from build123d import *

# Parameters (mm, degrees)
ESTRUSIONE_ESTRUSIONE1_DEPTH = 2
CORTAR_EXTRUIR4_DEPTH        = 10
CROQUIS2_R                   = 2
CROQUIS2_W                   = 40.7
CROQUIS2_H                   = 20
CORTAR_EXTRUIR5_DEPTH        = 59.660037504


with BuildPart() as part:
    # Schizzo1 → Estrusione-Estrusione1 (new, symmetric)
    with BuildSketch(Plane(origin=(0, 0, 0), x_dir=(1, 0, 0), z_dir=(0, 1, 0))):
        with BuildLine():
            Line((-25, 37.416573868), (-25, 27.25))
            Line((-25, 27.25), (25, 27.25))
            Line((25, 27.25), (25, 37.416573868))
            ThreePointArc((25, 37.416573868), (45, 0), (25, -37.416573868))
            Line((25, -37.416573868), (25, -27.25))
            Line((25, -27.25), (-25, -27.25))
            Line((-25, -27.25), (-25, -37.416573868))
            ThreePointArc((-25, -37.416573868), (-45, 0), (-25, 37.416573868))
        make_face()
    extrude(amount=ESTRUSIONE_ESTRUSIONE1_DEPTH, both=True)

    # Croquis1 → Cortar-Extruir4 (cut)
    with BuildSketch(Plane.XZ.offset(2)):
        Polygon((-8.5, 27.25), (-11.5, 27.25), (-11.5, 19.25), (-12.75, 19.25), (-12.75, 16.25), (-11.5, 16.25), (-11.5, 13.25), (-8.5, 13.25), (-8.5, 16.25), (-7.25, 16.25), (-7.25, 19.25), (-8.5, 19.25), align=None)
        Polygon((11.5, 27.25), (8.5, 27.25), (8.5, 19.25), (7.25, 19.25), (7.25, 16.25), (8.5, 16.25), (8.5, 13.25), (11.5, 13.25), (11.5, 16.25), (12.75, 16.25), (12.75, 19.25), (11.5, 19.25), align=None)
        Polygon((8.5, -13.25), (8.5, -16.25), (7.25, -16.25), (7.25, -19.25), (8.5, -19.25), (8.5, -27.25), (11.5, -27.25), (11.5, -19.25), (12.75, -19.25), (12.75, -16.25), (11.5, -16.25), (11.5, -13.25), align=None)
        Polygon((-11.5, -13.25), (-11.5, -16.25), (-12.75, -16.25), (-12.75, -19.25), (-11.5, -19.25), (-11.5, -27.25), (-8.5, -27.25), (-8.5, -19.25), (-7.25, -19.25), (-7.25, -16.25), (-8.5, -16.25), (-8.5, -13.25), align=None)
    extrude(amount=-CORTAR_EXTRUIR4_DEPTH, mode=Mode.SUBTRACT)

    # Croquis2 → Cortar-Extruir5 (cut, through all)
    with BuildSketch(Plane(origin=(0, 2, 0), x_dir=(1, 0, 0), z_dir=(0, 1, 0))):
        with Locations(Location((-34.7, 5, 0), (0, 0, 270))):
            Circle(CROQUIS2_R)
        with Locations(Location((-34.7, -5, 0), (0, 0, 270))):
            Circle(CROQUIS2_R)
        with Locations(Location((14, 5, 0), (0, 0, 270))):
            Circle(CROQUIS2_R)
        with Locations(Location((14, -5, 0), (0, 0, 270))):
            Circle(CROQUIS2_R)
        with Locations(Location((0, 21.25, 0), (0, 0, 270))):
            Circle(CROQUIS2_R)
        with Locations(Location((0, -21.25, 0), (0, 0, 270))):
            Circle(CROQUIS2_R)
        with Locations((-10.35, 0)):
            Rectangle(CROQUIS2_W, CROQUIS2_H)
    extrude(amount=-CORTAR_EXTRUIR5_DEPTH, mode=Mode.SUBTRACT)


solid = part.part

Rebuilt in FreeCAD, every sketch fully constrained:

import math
import FreeCAD as App
import Part
import Sketcher

V = App.Vector
Q = App.Units.Quantity

doc = App.newDocument("Part")
body = doc.addObject("PartDesign::Body", "Body")

sketch1 = body.newObject("Sketcher::SketchObject", "Sketch")
sketch1.AttachmentSupport = (doc.getObject("XZ_Plane"), [""])
sketch1.MapMode = "FlatFace"
sketch1.addGeometry(Part.LineSegment(V(-25, -27, 0), V(-25, -37, 0)), False)
sketch1.addGeometry(Part.ArcOfCircle(Part.Circle(V(0, 0, 0), V(0, 0, 1), 45), math.radians(124), math.radians(236)), False)
sketch1.addGeometry(Part.LineSegment(V(-25, 37, 0), V(-25, 27, 0)), False)
sketch1.addGeometry(Part.LineSegment(V(-25, 27, 0), V(25, 27, 0)), False)
sketch1.addGeometry(Part.LineSegment(V(25, 27, 0), V(25, 37, 0)), False)
sketch1.addGeometry(Part.ArcOfCircle(Part.Circle(V(0, 0, 0), V(0, 0, 1), 45), math.radians(-56), math.radians(56)), False)
sketch1.addGeometry(Part.LineSegment(V(25, -37, 0), V(25, -27, 0)), False)
sketch1.addGeometry(Part.LineSegment(V(25, -27, 0), V(-25, -27, 0)), False)
sketch1.addConstraint(Sketcher.Constraint("Coincident", 0, 2, 1, 2))
sketch1.addConstraint(Sketcher.Constraint("Coincident", 1, 1, 2, 1))
sketch1.addConstraint(Sketcher.Constraint("Coincident", 2, 2, 3, 1))
sketch1.addConstraint(Sketcher.Constraint("Coincident", 3, 2, 4, 1))
sketch1.addConstraint(Sketcher.Constraint("Coincident", 4, 2, 5, 2))
sketch1.addConstraint(Sketcher.Constraint("Coincident", 5, 1, 6, 1))
sketch1.addConstraint(Sketcher.Constraint("Coincident", 6, 2, 7, 1))
sketch1.addConstraint(Sketcher.Constraint("Coincident", 7, 2, 0, 1))
sketch1.addConstraint(Sketcher.Constraint("Vertical", 0))
sketch1.addConstraint(Sketcher.Constraint("Vertical", 2))
sketch1.addConstraint(Sketcher.Constraint("Horizontal", 3))
sketch1.addConstraint(Sketcher.Constraint("Vertical", 4))
sketch1.addConstraint(Sketcher.Constraint("Vertical", 6))
sketch1.addConstraint(Sketcher.Constraint("Horizontal", 7))
sketch1.addConstraint(Sketcher.Constraint("Coincident", 1, 3, -1, 1))
sketch1.addConstraint(Sketcher.Constraint("Coincident", 5, 3, -1, 1))
sketch1.addConstraint(Sketcher.Constraint("Equal", 1, 5))
sketch1.addConstraint(Sketcher.Constraint("Symmetric", 2, 2, 6, 2, -1, 1))
sketch1.addConstraint(Sketcher.Constraint("Horizontal", 1, 1, 4, 2))
sketch1.addConstraint(Sketcher.Constraint("Horizontal", 0, 2, 5, 1))
sketch1.addConstraint(Sketcher.Constraint("Radius", 1, Q("45 mm")))
sketch1.addConstraint(Sketcher.Constraint("DistanceX", 3, 1, 3, 2, Q("50 mm")))
sketch1.addConstraint(Sketcher.Constraint("DistanceY", 6, 2, 3, 2, Q("54.5 mm")))
pad1 = body.newObject("PartDesign::Pad", "Pad")
pad1.Profile = sketch1
pad1.Length = 4
pad1.Midplane = True

sketch2 = body.newObject("Sketcher::SketchObject", "Sketch001")
sketch2.AttachmentSupport = (doc.getObject("XZ_Plane"), [""])
sketch2.MapMode = "FlatFace"
sketch2.AttachmentOffset = App.Placement(V(0, 0, 2), App.Rotation())
sketch2.addGeometry(Part.LineSegment(V(-8.5, 27.2, 0), V(-11.5, 27.2, 0)), False)
sketch2.addGeometry(Part.LineSegment(V(-11.5, 27.2, 0), V(-11.5, 19.2, 0)), False)
sketch2.addGeometry(Part.LineSegment(V(-11.5, 19.2, 0), V(-12.8, 19.2, 0)), False)
sketch2.addGeometry(Part.LineSegment(V(-12.8, 19.2, 0), V(-12.8, 16.2, 0)), False)
sketch2.addGeometry(Part.LineSegment(V(-12.8, 16.2, 0), V(-11.5, 16.2, 0)), False)
sketch2.addGeometry(Part.LineSegment(V(-11.5, 16.2, 0), V(-11.5, 13.2, 0)), False)
sketch2.addGeometry(Part.LineSegment(V(-11.5, 13.2, 0), V(-8.5, 13.2, 0)), False)
sketch2.addGeometry(Part.LineSegment(V(-8.5, 13.2, 0), V(-8.5, 16.2, 0)), False)
sketch2.addGeometry(Part.LineSegment(V(-8.5, 16.2, 0), V(-7.2, 16.2, 0)), False)
sketch2.addGeometry(Part.LineSegment(V(-7.2, 16.2, 0), V(-7.2, 19.2, 0)), False)
sketch2.addGeometry(Part.LineSegment(V(-7.2, 19.2, 0), V(-8.5, 19.2, 0)), False)
sketch2.addGeometry(Part.LineSegment(V(-8.5, 19.2, 0), V(-8.5, 27.2, 0)), False)
sketch2.addGeometry(Part.LineSegment(V(11.5, 27.2, 0), V(8.5, 27.2, 0)), False)
sketch2.addGeometry(Part.LineSegment(V(8.5, 27.2, 0), V(8.5, 19.2, 0)), False)
sketch2.addGeometry(Part.LineSegment(V(8.5, 19.2, 0), V(7.2, 19.2, 0)), False)
sketch2.addGeometry(Part.LineSegment(V(7.2, 19.2, 0), V(7.2, 16.2, 0)), False)
sketch2.addGeometry(Part.LineSegment(V(7.2, 16.2, 0), V(8.5, 16.2, 0)), False)
sketch2.addGeometry(Part.LineSegment(V(8.5, 16.2, 0), V(8.5, 13.2, 0)), False)
sketch2.addGeometry(Part.LineSegment(V(8.5, 13.2, 0), V(11.5, 13.2, 0)), False)
sketch2.addGeometry(Part.LineSegment(V(11.5, 13.2, 0), V(11.5, 16.2, 0)), False)
sketch2.addGeometry(Part.LineSegment(V(11.5, 16.2, 0), V(12.8, 16.2, 0)), False)
sketch2.addGeometry(Part.LineSegment(V(12.8, 16.2, 0), V(12.8, 19.2, 0)), False)
sketch2.addGeometry(Part.LineSegment(V(12.8, 19.2, 0), V(11.5, 19.2, 0)), False)
sketch2.addGeometry(Part.LineSegment(V(11.5, 19.2, 0), V(11.5, 27.2, 0)), False)
sketch2.addGeometry(Part.LineSegment(V(8.5, -13.2, 0), V(8.5, -16.2, 0)), False)
sketch2.addGeometry(Part.LineSegment(V(8.5, -16.2, 0), V(7.2, -16.2, 0)), False)
sketch2.addGeometry(Part.LineSegment(V(7.2, -16.2, 0), V(7.2, -19.2, 0)), False)
sketch2.addGeometry(Part.LineSegment(V(7.2, -19.2, 0), V(8.5, -19.2, 0)), False)
sketch2.addGeometry(Part.LineSegment(V(8.5, -19.2, 0), V(8.5, -27.2, 0)), False)
sketch2.addGeometry(Part.LineSegment(V(8.5, -27.2, 0), V(11.5, -27.2, 0)), False)
sketch2.addGeometry(Part.LineSegment(V(11.5, -27.2, 0), V(11.5, -19.2, 0)), False)
sketch2.addGeometry(Part.LineSegment(V(11.5, -19.2, 0), V(12.8, -19.2, 0)), False)
sketch2.addGeometry(Part.LineSegment(V(12.8, -19.2, 0), V(12.8, -16.2, 0)), False)
sketch2.addGeometry(Part.LineSegment(V(12.8, -16.2, 0), V(11.5, -16.2, 0)), False)
sketch2.addGeometry(Part.LineSegment(V(11.5, -16.2, 0), V(11.5, -13.2, 0)), False)
sketch2.addGeometry(Part.LineSegment(V(11.5, -13.2, 0), V(8.5, -13.2, 0)), False)
sketch2.addGeometry(Part.LineSegment(V(-11.5, -13.2, 0), V(-11.5, -16.2, 0)), False)
sketch2.addGeometry(Part.LineSegment(V(-11.5, -16.2, 0), V(-12.8, -16.2, 0)), False)
sketch2.addGeometry(Part.LineSegment(V(-12.8, -16.2, 0), V(-12.8, -19.2, 0)), False)
sketch2.addGeometry(Part.LineSegment(V(-12.8, -19.2, 0), V(-11.5, -19.2, 0)), False)
sketch2.addGeometry(Part.LineSegment(V(-11.5, -19.2, 0), V(-11.5, -27.2, 0)), False)
sketch2.addGeometry(Part.LineSegment(V(-11.5, -27.2, 0), V(-8.5, -27.2, 0)), False)
sketch2.addGeometry(Part.LineSegment(V(-8.5, -27.2, 0), V(-8.5, -19.2, 0)), False)
sketch2.addGeometry(Part.LineSegment(V(-8.5, -19.2, 0), V(-7.2, -19.2, 0)), False)
sketch2.addGeometry(Part.LineSegment(V(-7.2, -19.2, 0), V(-7.2, -16.2, 0)), False)
sketch2.addGeometry(Part.LineSegment(V(-7.2, -16.2, 0), V(-8.5, -16.2, 0)), False)
sketch2.addGeometry(Part.LineSegment(V(-8.5, -16.2, 0), V(-8.5, -13.2, 0)), False)
sketch2.addGeometry(Part.LineSegment(V(-8.5, -13.2, 0), V(-11.5, -13.2, 0)), False)
sketch2.addConstraint(Sketcher.Constraint("Coincident", 0, 2, 1, 1))
sketch2.addConstraint(Sketcher.Constraint("Coincident", 1, 2, 2, 1))
sketch2.addConstraint(Sketcher.Constraint("Coincident", 2, 2, 3, 1))
sketch2.addConstraint(Sketcher.Constraint("Coincident", 3, 2, 4, 1))
sketch2.addConstraint(Sketcher.Constraint("Coincident", 4, 2, 5, 1))
sketch2.addConstraint(Sketcher.Constraint("Coincident", 5, 2, 6, 1))
sketch2.addConstraint(Sketcher.Constraint("Coincident", 6, 2, 7, 1))
sketch2.addConstraint(Sketcher.Constraint("Coincident", 7, 2, 8, 1))
sketch2.addConstraint(Sketcher.Constraint("Coincident", 8, 2, 9, 1))
sketch2.addConstraint(Sketcher.Constraint("Coincident", 9, 2, 10, 1))
sketch2.addConstraint(Sketcher.Constraint("Coincident", 10, 2, 11, 1))
sketch2.addConstraint(Sketcher.Constraint("Coincident", 11, 2, 0, 1))
sketch2.addConstraint(Sketcher.Constraint("Coincident", 12, 2, 13, 1))
sketch2.addConstraint(Sketcher.Constraint("Coincident", 13, 2, 14, 1))
sketch2.addConstraint(Sketcher.Constraint("Coincident", 14, 2, 15, 1))
sketch2.addConstraint(Sketcher.Constraint("Coincident", 15, 2, 16, 1))
sketch2.addConstraint(Sketcher.Constraint("Coincident", 16, 2, 17, 1))
sketch2.addConstraint(Sketcher.Constraint("Coincident", 17, 2, 18, 1))
sketch2.addConstraint(Sketcher.Constraint("Coincident", 18, 2, 19, 1))
sketch2.addConstraint(Sketcher.Constraint("Coincident", 19, 2, 20, 1))
sketch2.addConstraint(Sketcher.Constraint("Coincident", 20, 2, 21, 1))
sketch2.addConstraint(Sketcher.Constraint("Coincident", 21, 2, 22, 1))
sketch2.addConstraint(Sketcher.Constraint("Coincident", 22, 2, 23, 1))
sketch2.addConstraint(Sketcher.Constraint("Coincident", 23, 2, 12, 1))
sketch2.addConstraint(Sketcher.Constraint("Coincident", 24, 2, 25, 1))
sketch2.addConstraint(Sketcher.Constraint("Coincident", 25, 2, 26, 1))
sketch2.addConstraint(Sketcher.Constraint("Coincident", 26, 2, 27, 1))
sketch2.addConstraint(Sketcher.Constraint("Coincident", 27, 2, 28, 1))
sketch2.addConstraint(Sketcher.Constraint("Coincident", 28, 2, 29, 1))
sketch2.addConstraint(Sketcher.Constraint("Coincident", 29, 2, 30, 1))
sketch2.addConstraint(Sketcher.Constraint("Coincident", 30, 2, 31, 1))
sketch2.addConstraint(Sketcher.Constraint("Coincident", 31, 2, 32, 1))
sketch2.addConstraint(Sketcher.Constraint("Coincident", 32, 2, 33, 1))
sketch2.addConstraint(Sketcher.Constraint("Coincident", 33, 2, 34, 1))
sketch2.addConstraint(Sketcher.Constraint("Coincident", 34, 2, 35, 1))
sketch2.addConstraint(Sketcher.Constraint("Coincident", 35, 2, 24, 1))
sketch2.addConstraint(Sketcher.Constraint("Coincident", 36, 2, 37, 1))
sketch2.addConstraint(Sketcher.Constraint("Coincident", 37, 2, 38, 1))
sketch2.addConstraint(Sketcher.Constraint("Coincident", 38, 2, 39, 1))
sketch2.addConstraint(Sketcher.Constraint("Coincident", 39, 2, 40, 1))
sketch2.addConstraint(Sketcher.Constraint("Coincident", 40, 2, 41, 1))
sketch2.addConstraint(Sketcher.Constraint("Coincident", 41, 2, 42, 1))
sketch2.addConstraint(Sketcher.Constraint("Coincident", 42, 2, 43, 1))
sketch2.addConstraint(Sketcher.Constraint("Coincident", 43, 2, 44, 1))
sketch2.addConstraint(Sketcher.Constraint("Coincident", 44, 2, 45, 1))
sketch2.addConstraint(Sketcher.Constraint("Coincident", 45, 2, 46, 1))
sketch2.addConstraint(Sketcher.Constraint("Coincident", 46, 2, 47, 1))
sketch2.addConstraint(Sketcher.Constraint("Coincident", 47, 2, 36, 1))
sketch2.addConstraint(Sketcher.Constraint("Horizontal", 0))
sketch2.addConstraint(Sketcher.Constraint("Vertical", 1))
sketch2.addConstraint(Sketcher.Constraint("Horizontal", 2))
sketch2.addConstraint(Sketcher.Constraint("Vertical", 3))
sketch2.addConstraint(Sketcher.Constraint("Horizontal", 4))
sketch2.addConstraint(Sketcher.Constraint("Vertical", 5))
sketch2.addConstraint(Sketcher.Constraint("Horizontal", 6))
sketch2.addConstraint(Sketcher.Constraint("Vertical", 7))
sketch2.addConstraint(Sketcher.Constraint("Horizontal", 8))
sketch2.addConstraint(Sketcher.Constraint("Vertical", 9))
sketch2.addConstraint(Sketcher.Constraint("Horizontal", 10))
sketch2.addConstraint(Sketcher.Constraint("Vertical", 11))
sketch2.addConstraint(Sketcher.Constraint("Horizontal", 12))
sketch2.addConstraint(Sketcher.Constraint("Vertical", 13))
sketch2.addConstraint(Sketcher.Constraint("Horizontal", 14))
sketch2.addConstraint(Sketcher.Constraint("Vertical", 15))
sketch2.addConstraint(Sketcher.Constraint("Horizontal", 16))
sketch2.addConstraint(Sketcher.Constraint("Vertical", 17))
sketch2.addConstraint(Sketcher.Constraint("Horizontal", 18))
sketch2.addConstraint(Sketcher.Constraint("Vertical", 19))
sketch2.addConstraint(Sketcher.Constraint("Horizontal", 20))
sketch2.addConstraint(Sketcher.Constraint("Vertical", 21))
sketch2.addConstraint(Sketcher.Constraint("Horizontal", 22))
sketch2.addConstraint(Sketcher.Constraint("Vertical", 23))
sketch2.addConstraint(Sketcher.Constraint("Vertical", 24))
sketch2.addConstraint(Sketcher.Constraint("Horizontal", 25))
sketch2.addConstraint(Sketcher.Constraint("Vertical", 26))
sketch2.addConstraint(Sketcher.Constraint("Horizontal", 27))
sketch2.addConstraint(Sketcher.Constraint("Vertical", 28))
sketch2.addConstraint(Sketcher.Constraint("Horizontal", 29))
sketch2.addConstraint(Sketcher.Constraint("Vertical", 30))
sketch2.addConstraint(Sketcher.Constraint("Horizontal", 31))
sketch2.addConstraint(Sketcher.Constraint("Vertical", 32))
sketch2.addConstraint(Sketcher.Constraint("Horizontal", 33))
sketch2.addConstraint(Sketcher.Constraint("Vertical", 34))
sketch2.addConstraint(Sketcher.Constraint("Horizontal", 35))
sketch2.addConstraint(Sketcher.Constraint("Vertical", 36))
sketch2.addConstraint(Sketcher.Constraint("Horizontal", 37))
sketch2.addConstraint(Sketcher.Constraint("Vertical", 38))
sketch2.addConstraint(Sketcher.Constraint("Horizontal", 39))
sketch2.addConstraint(Sketcher.Constraint("Vertical", 40))
sketch2.addConstraint(Sketcher.Constraint("Horizontal", 41))
sketch2.addConstraint(Sketcher.Constraint("Vertical", 42))
sketch2.addConstraint(Sketcher.Constraint("Horizontal", 43))
sketch2.addConstraint(Sketcher.Constraint("Vertical", 44))
sketch2.addConstraint(Sketcher.Constraint("Horizontal", 45))
sketch2.addConstraint(Sketcher.Constraint("Vertical", 46))
sketch2.addConstraint(Sketcher.Constraint("Horizontal", 47))
sketch2.addConstraint(Sketcher.Constraint("Symmetric", 7, 2, 24, 2, -1, 1))
sketch2.addConstraint(Sketcher.Constraint("Symmetric", 9, 2, 26, 2, -1, 1))
sketch2.addConstraint(Sketcher.Constraint("Symmetric", 11, 2, 28, 2, -1, 1))
sketch2.addConstraint(Sketcher.Constraint("Symmetric", 1, 2, 30, 2, -1, 1))
sketch2.addConstraint(Sketcher.Constraint("Symmetric", 3, 2, 32, 2, -1, 1))
sketch2.addConstraint(Sketcher.Constraint("Symmetric", 5, 2, 34, 2, -1, 1))
sketch2.addConstraint(Sketcher.Constraint("Symmetric", 19, 2, 36, 2, -1, 1))
sketch2.addConstraint(Sketcher.Constraint("Symmetric", 21, 2, 38, 2, -1, 1))
sketch2.addConstraint(Sketcher.Constraint("Symmetric", 23, 2, 40, 2, -1, 1))
sketch2.addConstraint(Sketcher.Constraint("Symmetric", 13, 2, 42, 2, -1, 1))
sketch2.addConstraint(Sketcher.Constraint("Symmetric", 15, 2, 44, 2, -1, 1))
sketch2.addConstraint(Sketcher.Constraint("Symmetric", 17, 2, 46, 2, -1, 1))
sketch2.addConstraint(Sketcher.Constraint("Symmetric", 11, 2, 12, 2, -2))
sketch2.addConstraint(Sketcher.Constraint("Symmetric", 9, 2, 14, 2, -2))
sketch2.addConstraint(Sketcher.Constraint("Symmetric", 7, 2, 16, 2, -2))
sketch2.addConstraint(Sketcher.Constraint("Symmetric", 5, 2, 18, 2, -2))
sketch2.addConstraint(Sketcher.Constraint("Symmetric", 3, 2, 20, 2, -2))
sketch2.addConstraint(Sketcher.Constraint("Symmetric", 1, 2, 22, 2, -2))
sketch2.addConstraint(Sketcher.Constraint("Horizontal", 4, 2, 7, 2))
sketch2.addConstraint(Sketcher.Constraint("Horizontal", 2, 2, 9, 2))
sketch2.addConstraint(Sketcher.Constraint("Vertical", 1, 2, 4, 2))
sketch2.addConstraint(Sketcher.Constraint("Vertical", 7, 2, 10, 2))
sketch2.addConstraint(Sketcher.Constraint("Equal", 4, 8))
sketch2.addConstraint(Sketcher.Constraint("Equal", 47, 3))
sketch2.addConstraint(Sketcher.Constraint("Equal", 3, 5))
sketch2.addConstraint(Sketcher.Constraint("DistanceX", 0, 2, 0, 1, Q("3 mm")))
sketch2.addConstraint(Sketcher.Constraint("DistanceY", 1, 2, 1, 1, Q("8 mm")))
sketch2.addConstraint(Sketcher.Constraint("DistanceX", 11, 2, 12, 2, Q("17 mm")))
sketch2.addConstraint(Sketcher.Constraint("DistanceX", 2, 2, 2, 1, Q("1.25 mm")))
sketch2.addConstraint(Sketcher.Constraint("DistanceY", 24, 2, 17, 2, Q("29.5 mm")))
pocket1 = body.newObject("PartDesign::Pocket", "Pocket")
pocket1.Profile = sketch2
pocket1.Length = 10

sketch3 = body.newObject("Sketcher::SketchObject", "Sketch002")
sketch3.AttachmentSupport = (doc.getObject("XZ_Plane"), [""])
sketch3.MapMode = "FlatFace"
sketch3.AttachmentOffset = App.Placement(V(0, 0, -2), App.Rotation())
sketch3.addGeometry(Part.Circle(V(-34.7, -5, 0), V(0, 0, 1), 2), False)
sketch3.addGeometry(Part.Circle(V(-34.7, 5, 0), V(0, 0, 1), 2), False)
sketch3.addGeometry(Part.Circle(V(14, -5, 0), V(0, 0, 1), 2), False)
sketch3.addGeometry(Part.Circle(V(14, 5, 0), V(0, 0, 1), 2), False)
sketch3.addGeometry(Part.Circle(V(0, -21.2, 0), V(0, 0, 1), 2), False)
sketch3.addGeometry(Part.Circle(V(0, 21.2, 0), V(0, 0, 1), 2), False)
sketch3.addGeometry(Part.LineSegment(V(-30.7, -10, 0), V(-30.7, 10, 0)), False)
sketch3.addGeometry(Part.LineSegment(V(-30.7, 10, 0), V(10, 10, 0)), False)
sketch3.addGeometry(Part.LineSegment(V(10, 10, 0), V(10, -10, 0)), False)
sketch3.addGeometry(Part.LineSegment(V(10, -10, 0), V(-30.7, -10, 0)), False)
sketch3.addConstraint(Sketcher.Constraint("Coincident", 6, 2, 7, 1))
sketch3.addConstraint(Sketcher.Constraint("Coincident", 7, 2, 8, 1))
sketch3.addConstraint(Sketcher.Constraint("Coincident", 8, 2, 9, 1))
sketch3.addConstraint(Sketcher.Constraint("Coincident", 9, 2, 6, 1))
sketch3.addConstraint(Sketcher.Constraint("Vertical", 6))
sketch3.addConstraint(Sketcher.Constraint("Horizontal", 7))
sketch3.addConstraint(Sketcher.Constraint("Vertical", 8))
sketch3.addConstraint(Sketcher.Constraint("Horizontal", 9))
sketch3.addConstraint(Sketcher.Constraint("Equal", 0, 1))
sketch3.addConstraint(Sketcher.Constraint("Equal", 1, 2))
sketch3.addConstraint(Sketcher.Constraint("Equal", 2, 3))
sketch3.addConstraint(Sketcher.Constraint("Equal", 3, 4))
sketch3.addConstraint(Sketcher.Constraint("Equal", 4, 5))
sketch3.addConstraint(Sketcher.Constraint("Symmetric", 4, 3, 5, 3, -1, 1))
sketch3.addConstraint(Sketcher.Constraint("Symmetric", 0, 3, 1, 3, -1))
sketch3.addConstraint(Sketcher.Constraint("Symmetric", 2, 3, 3, 3, -1))
sketch3.addConstraint(Sketcher.Constraint("PointOnObject", 4, 3, -2))
sketch3.addConstraint(Sketcher.Constraint("Horizontal", 0, 3, 2, 3))
sketch3.addConstraint(Sketcher.Constraint("Diameter", 0, Q("4 mm")))
sketch3.addConstraint(Sketcher.Constraint("DistanceY", 6, 1, 6, 2, Q("20 mm")))
sketch3.addConstraint(Sketcher.Constraint("DistanceX", 7, 1, 7, 2, Q("40.7 mm")))
sketch3.addConstraint(Sketcher.Constraint("DistanceY", 0, 3, -1, 1, Q("5 mm")))
sketch3.addConstraint(Sketcher.Constraint("DistanceX", -1, 1, 2, 3, Q("14 mm")))
sketch3.addConstraint(Sketcher.Constraint("DistanceY", -1, 1, 6, 2, Q("10 mm")))
sketch3.addConstraint(Sketcher.Constraint("DistanceX", -1, 1, 7, 2, Q("10 mm")))
sketch3.addConstraint(Sketcher.Constraint("DistanceX", 1, 3, 6, 2, Q("4 mm")))
sketch3.addConstraint(Sketcher.Constraint("DistanceY", 4, 3, 5, 3, Q("42.5 mm")))
pocket2 = body.newObject("PartDesign::Pocket", "Pocket001")
pocket2.Profile = sketch3
pocket2.Type = "ThroughAll"
pocket2.Reversed = True

doc.recompute()
